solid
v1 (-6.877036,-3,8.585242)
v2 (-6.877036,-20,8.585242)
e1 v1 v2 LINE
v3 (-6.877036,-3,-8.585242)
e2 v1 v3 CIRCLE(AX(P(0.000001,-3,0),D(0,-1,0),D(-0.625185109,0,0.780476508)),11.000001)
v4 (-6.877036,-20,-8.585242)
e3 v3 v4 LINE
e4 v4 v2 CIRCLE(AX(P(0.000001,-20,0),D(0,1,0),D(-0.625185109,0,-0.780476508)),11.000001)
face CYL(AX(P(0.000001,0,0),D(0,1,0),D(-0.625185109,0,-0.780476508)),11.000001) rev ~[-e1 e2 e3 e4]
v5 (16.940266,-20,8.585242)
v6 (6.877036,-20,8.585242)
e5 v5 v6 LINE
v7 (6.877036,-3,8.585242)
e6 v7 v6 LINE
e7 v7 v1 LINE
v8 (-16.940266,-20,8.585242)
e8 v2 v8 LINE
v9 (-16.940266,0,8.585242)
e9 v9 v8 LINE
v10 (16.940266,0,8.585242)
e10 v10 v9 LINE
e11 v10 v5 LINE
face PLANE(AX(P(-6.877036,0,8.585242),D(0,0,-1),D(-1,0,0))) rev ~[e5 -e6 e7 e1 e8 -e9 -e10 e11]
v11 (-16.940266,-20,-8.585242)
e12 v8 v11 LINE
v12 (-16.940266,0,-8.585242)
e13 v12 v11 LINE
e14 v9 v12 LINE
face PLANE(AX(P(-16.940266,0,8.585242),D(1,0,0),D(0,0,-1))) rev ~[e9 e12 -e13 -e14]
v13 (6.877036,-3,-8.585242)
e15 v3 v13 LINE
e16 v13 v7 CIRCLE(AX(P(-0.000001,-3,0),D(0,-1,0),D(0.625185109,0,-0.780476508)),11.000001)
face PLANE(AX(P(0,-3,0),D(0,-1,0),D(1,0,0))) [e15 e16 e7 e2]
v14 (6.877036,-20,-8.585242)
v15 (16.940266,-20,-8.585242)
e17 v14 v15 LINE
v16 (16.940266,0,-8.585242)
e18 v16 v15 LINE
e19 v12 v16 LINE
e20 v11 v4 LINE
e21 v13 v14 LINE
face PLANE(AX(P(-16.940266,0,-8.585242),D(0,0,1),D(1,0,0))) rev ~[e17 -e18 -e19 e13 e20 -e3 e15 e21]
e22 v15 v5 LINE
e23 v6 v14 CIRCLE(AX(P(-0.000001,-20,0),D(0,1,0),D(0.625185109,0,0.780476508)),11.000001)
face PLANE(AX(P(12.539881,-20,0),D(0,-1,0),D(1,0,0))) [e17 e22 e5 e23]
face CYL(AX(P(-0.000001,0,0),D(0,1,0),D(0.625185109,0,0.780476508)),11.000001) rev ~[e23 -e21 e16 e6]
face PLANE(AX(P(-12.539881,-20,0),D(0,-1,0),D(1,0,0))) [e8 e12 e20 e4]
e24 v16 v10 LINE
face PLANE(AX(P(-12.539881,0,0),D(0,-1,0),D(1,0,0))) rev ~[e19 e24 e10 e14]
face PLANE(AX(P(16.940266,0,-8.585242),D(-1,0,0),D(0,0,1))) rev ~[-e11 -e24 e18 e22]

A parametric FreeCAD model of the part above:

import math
import FreeCAD as App
import Part
import Sketcher

doc = App.newDocument("Part")
body = doc.addObject("PartDesign::Body", "Body")

# Sketch on XZ plane
sketch1 = body.newObject("Sketcher::SketchObject", "Sketch")
sketch1.AttachmentSupport = (doc.getObject("XZ_Plane"), [""])
sketch1.MapMode = "FlatFace"
sketch1.addGeometry([
    Part.LineSegment(App.Vector(7, 9, 0), App.Vector(-7, 9, 0)),
    Part.ArcOfCircle(Part.Circle(App.Vector(0, 0, 0), App.Vector(0, 0, 1), 11), math.radians(129), math.radians(231)),
    Part.LineSegment(App.Vector(-7, -9, 0), App.Vector(7, -9, 0)),
    Part.ArcOfCircle(Part.Circle(App.Vector(0, 0, 0), App.Vector(0, 0, 1), 11), math.radians(-51), math.radians(51)),
], False)
sketch1.addConstraint([
    Sketcher.Constraint("Coincident", 0, 2, 1, 1),
    Sketcher.Constraint("Coincident", 1, 2, 2, 1),
    Sketcher.Constraint("Coincident", 2, 2, 3, 1),
    Sketcher.Constraint("Coincident", 3, 2, 0, 1),
    Sketcher.Constraint("Horizontal", 0),
    Sketcher.Constraint("Horizontal", 2),
    Sketcher.Constraint("Coincident", 1, 3, -1, 1),
    Sketcher.Constraint("Coincident", 3, 3, -1, 1),
    Sketcher.Constraint("Equal", 1, 3),
    Sketcher.Constraint("Vertical", 0, 2, 1, 2),
    Sketcher.Constraint("Radius", 1, 11.000001),
    Sketcher.Constraint("DistanceX", 0, 2, 0, 1, 13.754072),
])
pad1 = body.newObject("PartDesign::Pad", "Pad")
pad1.Profile = sketch1
pad1.Length = 3

# Sketch on XZ plane
sketch2 = body.newObject("Sketcher::SketchObject", "Sketch001")
sketch2.AttachmentSupport = (doc.getObject("XZ_Plane"), [""])
sketch2.MapMode = "FlatFace"
sketch2.addGeometry([
    Part.ArcOfCircle(Part.Circle(App.Vector(0, 0, 0), App.Vector(0, 0, 1), 11), math.radians(129), math.radians(231)),  # 0
    Part.LineSegment(App.Vector(-7, 9, 0), App.Vector(-17, 9, 0)),  # 1
    Part.LineSegment(App.Vector(-17, 9, 0), App.Vector(-17, -9, 0)),  # 2
    Part.LineSegment(App.Vector(-17, -9, 0), App.Vector(-7, -9, 0)),  # 3
    Part.LineSegment(App.Vector(17, 9, 0), App.Vector(7, 9, 0)),  # 4
    Part.ArcOfCircle(Part.Circle(App.Vector(0, 0, 0), App.Vector(0, 0, 1), 11), math.radians(-51), math.radians(51)),  # 5
    Part.LineSegment(App.Vector(7, -9, 0), App.Vector(17, -9, 0)),  # 6
    Part.LineSegment(App.Vector(17, -9, 0), App.Vector(17, 9, 0)),  # 7
], False)
sketch2.addConstraint([
    Sketcher.Constraint("Coincident", 0, 1, 1, 1),
    Sketcher.Constraint("Coincident", 1, 2, 2, 1),
    Sketcher.Constraint("Coincident", 2, 2, 3, 1),
    Sketcher.Constraint("Coincident", 3, 2, 0, 2),
    Sketcher.Constraint("Coincident", 4, 2, 5, 2),
    Sketcher.Constraint("Coincident", 5, 1, 6, 1),
    Sketcher.Constraint("Coincident", 6, 2, 7, 1),
    Sketcher.Constraint("Coincident", 7, 2, 4, 1),
    Sketcher.Constraint("Horizontal", 1),
    Sketcher.Constraint("Vertical", 2),
    Sketcher.Constraint("Horizontal", 3),
    Sketcher.Constraint("Horizontal", 4),
    Sketcher.Constraint("Horizontal", 6),
    Sketcher.Constraint("Vertical", 7),
    Sketcher.Constraint("Coincident", 0, 3, -1, 1),
    Sketcher.Constraint("Coincident", 5, 3, -1, 1),
    Sketcher.Constraint("Equal", 0, 5),
    Sketcher.Constraint("Symmetric", 1, 2, 6, 2, -1, 1),
    Sketcher.Constraint("Horizontal", 1, 2, 4, 2),
    Sketcher.Constraint("Horizontal", 3, 2, 5, 1),
    Sketcher.Constraint("Radius", 0, 11.000001),
    Sketcher.Constraint("DistanceX", 1, 2, 1, 1, 10.06323),
    Sketcher.Constraint("DistanceY", 2, 2, 2, 1, 17.170484),
])
pad2 = body.newObject("PartDesign::Pad", "Pad001")
pad2.Profile = sketch2
pad2.Length = 20

doc.recompute()
